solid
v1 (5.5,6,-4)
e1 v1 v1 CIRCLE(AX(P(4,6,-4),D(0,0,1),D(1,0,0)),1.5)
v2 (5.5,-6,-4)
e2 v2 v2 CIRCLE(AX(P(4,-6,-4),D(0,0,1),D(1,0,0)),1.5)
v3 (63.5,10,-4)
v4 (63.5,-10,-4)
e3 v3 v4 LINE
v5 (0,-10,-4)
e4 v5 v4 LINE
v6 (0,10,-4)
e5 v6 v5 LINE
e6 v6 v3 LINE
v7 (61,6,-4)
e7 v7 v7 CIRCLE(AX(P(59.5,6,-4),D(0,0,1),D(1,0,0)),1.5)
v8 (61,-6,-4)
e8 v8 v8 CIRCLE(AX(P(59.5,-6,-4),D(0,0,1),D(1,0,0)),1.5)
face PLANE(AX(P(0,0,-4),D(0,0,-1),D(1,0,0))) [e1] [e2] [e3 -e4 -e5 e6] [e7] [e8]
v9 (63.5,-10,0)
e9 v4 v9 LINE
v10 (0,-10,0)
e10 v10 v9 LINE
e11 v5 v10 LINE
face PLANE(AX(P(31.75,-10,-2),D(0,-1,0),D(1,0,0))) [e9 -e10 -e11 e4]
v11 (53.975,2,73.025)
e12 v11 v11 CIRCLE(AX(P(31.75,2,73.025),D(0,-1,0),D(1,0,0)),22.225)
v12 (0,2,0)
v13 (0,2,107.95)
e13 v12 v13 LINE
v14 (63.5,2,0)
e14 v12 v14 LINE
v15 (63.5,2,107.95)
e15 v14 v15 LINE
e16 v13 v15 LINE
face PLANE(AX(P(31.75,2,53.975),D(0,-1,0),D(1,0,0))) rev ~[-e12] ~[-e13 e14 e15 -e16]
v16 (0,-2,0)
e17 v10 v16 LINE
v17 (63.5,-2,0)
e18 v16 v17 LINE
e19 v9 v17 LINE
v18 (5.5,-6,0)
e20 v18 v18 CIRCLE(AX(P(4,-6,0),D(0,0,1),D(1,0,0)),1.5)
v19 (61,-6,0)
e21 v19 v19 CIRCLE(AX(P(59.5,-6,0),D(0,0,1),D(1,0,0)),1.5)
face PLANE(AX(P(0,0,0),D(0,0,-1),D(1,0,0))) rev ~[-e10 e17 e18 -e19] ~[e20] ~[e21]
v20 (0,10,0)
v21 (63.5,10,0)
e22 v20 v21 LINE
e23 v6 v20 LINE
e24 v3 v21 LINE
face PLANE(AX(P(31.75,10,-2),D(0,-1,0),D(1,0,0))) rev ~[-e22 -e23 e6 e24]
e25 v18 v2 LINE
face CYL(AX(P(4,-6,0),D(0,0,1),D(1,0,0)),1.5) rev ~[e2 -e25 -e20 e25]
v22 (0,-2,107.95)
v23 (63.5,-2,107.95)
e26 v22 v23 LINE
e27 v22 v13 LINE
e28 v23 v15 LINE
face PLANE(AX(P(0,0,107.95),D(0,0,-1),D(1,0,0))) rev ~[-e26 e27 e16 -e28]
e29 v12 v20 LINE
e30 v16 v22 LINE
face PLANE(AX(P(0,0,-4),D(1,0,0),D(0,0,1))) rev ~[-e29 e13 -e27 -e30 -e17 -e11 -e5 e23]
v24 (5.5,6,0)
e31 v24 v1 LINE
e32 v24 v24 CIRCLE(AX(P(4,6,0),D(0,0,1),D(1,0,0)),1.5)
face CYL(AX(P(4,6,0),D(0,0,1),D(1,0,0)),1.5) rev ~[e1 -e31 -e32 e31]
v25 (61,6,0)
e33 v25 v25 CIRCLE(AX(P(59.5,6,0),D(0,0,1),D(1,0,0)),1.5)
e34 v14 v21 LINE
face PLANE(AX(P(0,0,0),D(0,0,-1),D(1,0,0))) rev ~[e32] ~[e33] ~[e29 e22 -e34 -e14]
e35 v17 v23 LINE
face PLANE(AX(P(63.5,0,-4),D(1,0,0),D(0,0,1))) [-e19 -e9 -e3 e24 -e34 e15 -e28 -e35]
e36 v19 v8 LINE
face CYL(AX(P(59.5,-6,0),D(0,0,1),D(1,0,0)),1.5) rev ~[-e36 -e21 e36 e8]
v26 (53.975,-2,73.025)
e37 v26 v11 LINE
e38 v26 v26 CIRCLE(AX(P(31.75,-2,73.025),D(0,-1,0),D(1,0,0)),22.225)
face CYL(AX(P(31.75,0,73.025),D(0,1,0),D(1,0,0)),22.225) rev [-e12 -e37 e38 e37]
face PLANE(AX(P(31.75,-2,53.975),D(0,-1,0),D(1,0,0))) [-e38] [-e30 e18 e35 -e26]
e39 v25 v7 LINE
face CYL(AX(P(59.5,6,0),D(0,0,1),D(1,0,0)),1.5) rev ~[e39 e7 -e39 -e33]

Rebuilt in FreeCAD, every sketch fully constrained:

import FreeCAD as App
import Part
import Sketcher
from FreeCAD import Vector

doc = App.newDocument("Part")
body = doc.addObject("PartDesign::Body", "Body")

# Sketch on XZ plane
sketch1 = doc.addObject("Sketcher::SketchObject", "Sketch")
body.addObject(sketch1)
sketch1.AttachmentSupport = (doc.XZ_Plane, [""])
sketch1.MapMode = "FlatFace"
sketch1.addGeometry([
    Part.LineSegment(Vector(0, 108, 0), Vector(0, 0, 0)),  # 0
    Part.LineSegment(Vector(0, 0, 0), Vector(64, 0, 0)),  # 1
    Part.LineSegment(Vector(64, 0, 0), Vector(64, 108, 0)),  # 2
    Part.LineSegment(Vector(64, 108, 0), Vector(0, 108, 0)),  # 3
    Part.Circle(Vector(32, 73, 0), Vector(0, 0, 1), 22),  # 4
], False)
sketch1.addConstraint([
    Sketcher.Constraint("Coincident", 0, 2, 1, 1),
    Sketcher.Constraint("Coincident", 1, 2, 2, 1),
    Sketcher.Constraint("Coincident", 2, 2, 3, 1),
    Sketcher.Constraint("Coincident", 3, 2, 0, 1),
    Sketcher.Constraint("Vertical", 0),
    Sketcher.Constraint("Horizontal", 1),
    Sketcher.Constraint("Vertical", 2),
    Sketcher.Constraint("Horizontal", 3),
    Sketcher.Constraint("Coincident", 0, 2, -1, 1),
    Sketcher.Constraint("Diameter", 4, 44.45),
    Sketcher.Constraint("DistanceX", 1, 1, 1, 2, 63.5),
    Sketcher.Constraint("DistanceY", 0, 2, 0, 1, 107.95),
    Sketcher.Constraint("DistanceX", -1, 1, 4, 3, 31.75),
    Sketcher.Constraint("DistanceY", -1, 1, 4, 3, 73.025),
])
pad1 = doc.addObject("PartDesign::Pad", "Pad")
body.addObject(pad1)
pad1.Profile = sketch1
pad1.Length = 4
pad1.Midplane = True

# Sketch on XZ plane
sketch2 = doc.addObject("Sketcher::SketchObject", "Sketch001")
body.addObject(sketch2)
sketch2.AttachmentSupport = (doc.XZ_Plane, [""])
sketch2.MapMode = "FlatFace"
sketch2.addGeometry([
    Part.LineSegment(Vector(0, 0, 0), Vector(0, -4, 0)),
    Part.LineSegment(Vector(0, -4, 0), Vector(63.5, -4, 0)),
    Part.LineSegment(Vector(63.5, -4, 0), Vector(63.5, 0, 0)),
    Part.LineSegment(Vector(63.5, 0, 0), Vector(0, 0, 0)),
], False)
sketch2.addConstraint([
    Sketcher.Constraint("Coincident", 0, 2, 1, 1),
    Sketcher.Constraint("Coincident", 1, 2, 2, 1),
    Sketcher.Constraint("Coincident", 2, 2, 3, 1),
    Sketcher.Constraint("Coincident", 3, 2, 0, 1),
    Sketcher.Constraint("Vertical", 0),
    Sketcher.Constraint("Horizontal", 1),
    Sketcher.Constraint("Vertical", 2),
    Sketcher.Constraint("Horizontal", 3),
    Sketcher.Constraint("Coincident", 3, 2, -1, 1),
    Sketcher.Constraint("DistanceY", 0, 2, 0, 1, 4.0),
    Sketcher.Constraint("DistanceX", 1, 1, 1, 2, 63.5),
])
pad2 = doc.addObject("PartDesign::Pad", "Pad001")
body.addObject(pad2)
pad2.Profile = sketch2
pad2.Length = 20
pad2.Midplane = True

# Sketch on XY plane
sketch3 = doc.addObject("Sketcher::SketchObject", "Sketch002")
body.addObject(sketch3)
sketch3.AttachmentSupport = (doc.XY_Plane, [""])
sketch3.MapMode = "FlatFace"
sketch3.addGeometry([
    Part.Circle(Vector(4, 6, 0), Vector(0, 0, 1), 1.5),
    Part.Circle(Vector(59.5, 6, 0), Vector(0, 0, 1), 1.5),
], False)
sketch3.addConstraint([
    Sketcher.Constraint("Equal", 0, 1),
    Sketcher.Constraint("Horizontal", 0, 3, 1, 3),
    Sketcher.Constraint("Diameter", 0, 3.0),
    Sketcher.Constraint("DistanceX", -1, 1, 0, 3, 4.0),
    Sketcher.Constraint("DistanceY", -1, 1, 0, 3, 6.0),
    Sketcher.Constraint("DistanceX", -1, 1, 1, 3, 59.5),
])
pocket1 = doc.addObject("PartDesign::Pocket", "Pocket")
body.addObject(pocket1)
pocket1.Profile = sketch3
pocket1.Length = 25

# Sketch on XY plane
sketch4 = doc.addObject("Sketcher::SketchObject", "Sketch003")
body.addObject(sketch4)
sketch4.AttachmentSupport = (doc.XY_Plane, [""])
sketch4.MapMode = "FlatFace"
sketch4.addGeometry([
    Part.Circle(Vector(4, -6, 0), Vector(0, 0, 1), 1.5),
    Part.Circle(Vector(59.5, -6, 0), Vector(0, 0, 1), 1.5),
], False)
sketch4.addConstraint([
    Sketcher.Constraint("Equal", 0, 1),
    Sketcher.Constraint("Horizontal", 0, 3, 1, 3),
    Sketcher.Constraint("Diameter", 0, 3.0),
    Sketcher.Constraint("DistanceX", -1, 1, 0, 3, 4.0),
    Sketcher.Constraint("DistanceY", 0, 3, -1, 1, 6.0),
    Sketcher.Constraint("DistanceX", -1, 1, 1, 3, 59.5),
])
pocket2 = doc.addObject("PartDesign::Pocket", "Pocket001")
body.addObject(pocket2)
pocket2.Profile = sketch4
pocket2.Length = 25

doc.recompute()
